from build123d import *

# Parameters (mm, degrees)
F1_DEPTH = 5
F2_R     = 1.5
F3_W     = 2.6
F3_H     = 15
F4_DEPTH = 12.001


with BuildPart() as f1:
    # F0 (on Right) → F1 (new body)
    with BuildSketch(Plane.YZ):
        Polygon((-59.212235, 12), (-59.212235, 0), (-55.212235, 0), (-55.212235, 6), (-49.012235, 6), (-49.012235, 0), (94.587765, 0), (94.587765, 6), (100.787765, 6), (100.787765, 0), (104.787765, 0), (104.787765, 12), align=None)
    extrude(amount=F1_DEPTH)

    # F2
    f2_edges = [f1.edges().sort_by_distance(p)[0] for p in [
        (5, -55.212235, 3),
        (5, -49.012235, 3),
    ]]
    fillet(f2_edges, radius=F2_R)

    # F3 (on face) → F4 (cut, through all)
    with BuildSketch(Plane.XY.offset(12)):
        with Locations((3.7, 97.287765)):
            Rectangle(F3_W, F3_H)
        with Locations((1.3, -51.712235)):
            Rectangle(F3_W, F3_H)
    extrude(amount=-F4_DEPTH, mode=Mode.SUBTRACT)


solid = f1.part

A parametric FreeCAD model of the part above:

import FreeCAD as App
import Part
import Sketcher

V = App.Vector


def edges_at(feature, points):
    """Names of the edges that pass closest to the given points."""
    edges = feature.Shape.Edges
    near = lambda p: min(range(len(edges)), key=lambda i: edges[i].distToShape(Part.Vertex(*p))[0])
    return sorted({f"Edge{near(p) + 1}" for p in points})


def add_polygon(sketch, points):
    """Adds a closed chain of lines whose ends are joined by coincident constraints."""
    first, n = sketch.GeometryCount, len(points)
    for a, b in zip(points, points[1:] + points[:1]):
        sketch.addGeometry(Part.LineSegment(App.Vector(*a, 0), App.Vector(*b, 0)), False)
    for i in range(n):
        sketch.addConstraint(Sketcher.Constraint("Coincident", first + i, 2, first + (i + 1) % n, 1))

doc = App.newDocument("Part")
body = doc.addObject("PartDesign::Body", "Body")

# Sketch on YZ plane
sketch1 = body.newObject("Sketcher::SketchObject", "Sketch")
sketch1.AttachmentSupport = (doc.getObject("YZ_Plane"), [""])
sketch1.MapMode = "FlatFace"
add_polygon(sketch1, [(-59.2, 12), (-59.2, 0), (-55.2, 0), (-55.2, 6), (-49, 6), (-49, 0), (94.6, 0), (94.6, 6), (100.8, 6), (100.8, 0), (104.8, 0), (104.8, 12)])  # lines 0-11
sketch1.addConstraint(Sketcher.Constraint("Vertical", 0))
sketch1.addConstraint(Sketcher.Constraint("Horizontal", 1))
sketch1.addConstraint(Sketcher.Constraint("Vertical", 2))
sketch1.addConstraint(Sketcher.Constraint("Horizontal", 3))
sketch1.addConstraint(Sketcher.Constraint("Vertical", 4))
sketch1.addConstraint(Sketcher.Constraint("Horizontal", 5))
sketch1.addConstraint(Sketcher.Constraint("Vertical", 6))
sketch1.addConstraint(Sketcher.Constraint("Horizontal", 7))
sketch1.addConstraint(Sketcher.Constraint("Vertical", 8))
sketch1.addConstraint(Sketcher.Constraint("Horizontal", 9))
sketch1.addConstraint(Sketcher.Constraint("Vertical", 10))
sketch1.addConstraint(Sketcher.Constraint("Horizontal", 11))
sketch1.addConstraint(Sketcher.Constraint("PointOnObject", 0, 2, -1))
sketch1.addConstraint(Sketcher.Constraint("PointOnObject", 4, 2, -1))
sketch1.addConstraint(Sketcher.Constraint("PointOnObject", 8, 2, -1))
sketch1.addConstraint(Sketcher.Constraint("Horizontal", 3, 2, 6, 2))
sketch1.addConstraint(Sketcher.Constraint("Equal", 3, 7))
sketch1.addConstraint(Sketcher.Constraint("Equal", 1, 9))
sketch1.addConstraint(Sketcher.Constraint("DistanceX", 1, 1, 1, 2, 4.0))
sketch1.addConstraint(Sketcher.Constraint("DistanceX", 11, 2, 11, 1, 164.0))
sketch1.addConstraint(Sketcher.Constraint("DistanceY", 0, 2, 0, 1, 12.0))
sketch1.addConstraint(Sketcher.Constraint("DistanceY", 2, 1, 2, 2, 6.0))
sketch1.addConstraint(Sketcher.Constraint("DistanceX", 3, 1, 3, 2, 6.2))
sketch1.addConstraint(Sketcher.Constraint("DistanceX", 0, 2, -1, 1, 59.212235))
pad1 = body.newObject("PartDesign::Pad", "Pad")
pad1.Profile = sketch1
pad1.Length = 5
doc.recompute()

fillet = body.newObject("PartDesign::Fillet", "Fillet")
fillet.Base = (pad1, edges_at(pad1, [(5, -55.212, 3), (5, -49.012, 3)]))
fillet.Radius = 1.5

# Sketch on XY plane
sketch2 = body.newObject("Sketcher::SketchObject", "Sketch001")
sketch2.AttachmentSupport = (doc.getObject("XY_Plane"), [""])
sketch2.MapMode = "FlatFace"
sketch2.AttachmentOffset = App.Placement(V(0, 0, 12), App.Rotation())
add_polygon(sketch2, [(2.4, 104.8), (2.4, 89.8), (5, 89.8), (5, 104.8)])  # lines 0-3
add_polygon(sketch2, [(0, -44.2), (0, -59.2), (2.6, -59.2), (2.6, -44.2)])  # lines 4-7
sketch2.addConstraint(Sketcher.Constraint("Vertical", 0))
sketch2.addConstraint(Sketcher.Constraint("Horizontal", 1))
sketch2.addConstraint(Sketcher.Constraint("Vertical", 2))
sketch2.addConstraint(Sketcher.Constraint("Horizontal", 3))
sketch2.addConstraint(Sketcher.Constraint("Vertical", 4))
sketch2.addConstraint(Sketcher.Constraint("Horizontal", 5))
sketch2.addConstraint(Sketcher.Constraint("Vertical", 6))
sketch2.addConstraint(Sketcher.Constraint("Horizontal", 7))
sketch2.addConstraint(Sketcher.Constraint("PointOnObject", 4, 2, -2))
sketch2.addConstraint(Sketcher.Constraint("Equal", 3, 5))
sketch2.addConstraint(Sketcher.Constraint("Equal", 2, 4))
sketch2.addConstraint(Sketcher.Constraint("DistanceY", 0, 2, 0, 1, 15.0))
sketch2.addConstraint(Sketcher.Constraint("DistanceX", 1, 1, 1, 2, 2.6))
sketch2.addConstraint(Sketcher.Constraint("DistanceX", -1, 1, 1, 2, 5.0))
sketch2.addConstraint(Sketcher.Constraint("DistanceY", 4, 2, 0, 2, 149.0))
sketch2.addConstraint(Sketcher.Constraint("DistanceY", -1, 1, 0, 2, 89.787765))
pocket1 = body.newObject("PartDesign::Pocket", "Pocket")
pocket1.Profile = sketch2
pocket1.Type = "ThroughAll"

doc.recompute()
